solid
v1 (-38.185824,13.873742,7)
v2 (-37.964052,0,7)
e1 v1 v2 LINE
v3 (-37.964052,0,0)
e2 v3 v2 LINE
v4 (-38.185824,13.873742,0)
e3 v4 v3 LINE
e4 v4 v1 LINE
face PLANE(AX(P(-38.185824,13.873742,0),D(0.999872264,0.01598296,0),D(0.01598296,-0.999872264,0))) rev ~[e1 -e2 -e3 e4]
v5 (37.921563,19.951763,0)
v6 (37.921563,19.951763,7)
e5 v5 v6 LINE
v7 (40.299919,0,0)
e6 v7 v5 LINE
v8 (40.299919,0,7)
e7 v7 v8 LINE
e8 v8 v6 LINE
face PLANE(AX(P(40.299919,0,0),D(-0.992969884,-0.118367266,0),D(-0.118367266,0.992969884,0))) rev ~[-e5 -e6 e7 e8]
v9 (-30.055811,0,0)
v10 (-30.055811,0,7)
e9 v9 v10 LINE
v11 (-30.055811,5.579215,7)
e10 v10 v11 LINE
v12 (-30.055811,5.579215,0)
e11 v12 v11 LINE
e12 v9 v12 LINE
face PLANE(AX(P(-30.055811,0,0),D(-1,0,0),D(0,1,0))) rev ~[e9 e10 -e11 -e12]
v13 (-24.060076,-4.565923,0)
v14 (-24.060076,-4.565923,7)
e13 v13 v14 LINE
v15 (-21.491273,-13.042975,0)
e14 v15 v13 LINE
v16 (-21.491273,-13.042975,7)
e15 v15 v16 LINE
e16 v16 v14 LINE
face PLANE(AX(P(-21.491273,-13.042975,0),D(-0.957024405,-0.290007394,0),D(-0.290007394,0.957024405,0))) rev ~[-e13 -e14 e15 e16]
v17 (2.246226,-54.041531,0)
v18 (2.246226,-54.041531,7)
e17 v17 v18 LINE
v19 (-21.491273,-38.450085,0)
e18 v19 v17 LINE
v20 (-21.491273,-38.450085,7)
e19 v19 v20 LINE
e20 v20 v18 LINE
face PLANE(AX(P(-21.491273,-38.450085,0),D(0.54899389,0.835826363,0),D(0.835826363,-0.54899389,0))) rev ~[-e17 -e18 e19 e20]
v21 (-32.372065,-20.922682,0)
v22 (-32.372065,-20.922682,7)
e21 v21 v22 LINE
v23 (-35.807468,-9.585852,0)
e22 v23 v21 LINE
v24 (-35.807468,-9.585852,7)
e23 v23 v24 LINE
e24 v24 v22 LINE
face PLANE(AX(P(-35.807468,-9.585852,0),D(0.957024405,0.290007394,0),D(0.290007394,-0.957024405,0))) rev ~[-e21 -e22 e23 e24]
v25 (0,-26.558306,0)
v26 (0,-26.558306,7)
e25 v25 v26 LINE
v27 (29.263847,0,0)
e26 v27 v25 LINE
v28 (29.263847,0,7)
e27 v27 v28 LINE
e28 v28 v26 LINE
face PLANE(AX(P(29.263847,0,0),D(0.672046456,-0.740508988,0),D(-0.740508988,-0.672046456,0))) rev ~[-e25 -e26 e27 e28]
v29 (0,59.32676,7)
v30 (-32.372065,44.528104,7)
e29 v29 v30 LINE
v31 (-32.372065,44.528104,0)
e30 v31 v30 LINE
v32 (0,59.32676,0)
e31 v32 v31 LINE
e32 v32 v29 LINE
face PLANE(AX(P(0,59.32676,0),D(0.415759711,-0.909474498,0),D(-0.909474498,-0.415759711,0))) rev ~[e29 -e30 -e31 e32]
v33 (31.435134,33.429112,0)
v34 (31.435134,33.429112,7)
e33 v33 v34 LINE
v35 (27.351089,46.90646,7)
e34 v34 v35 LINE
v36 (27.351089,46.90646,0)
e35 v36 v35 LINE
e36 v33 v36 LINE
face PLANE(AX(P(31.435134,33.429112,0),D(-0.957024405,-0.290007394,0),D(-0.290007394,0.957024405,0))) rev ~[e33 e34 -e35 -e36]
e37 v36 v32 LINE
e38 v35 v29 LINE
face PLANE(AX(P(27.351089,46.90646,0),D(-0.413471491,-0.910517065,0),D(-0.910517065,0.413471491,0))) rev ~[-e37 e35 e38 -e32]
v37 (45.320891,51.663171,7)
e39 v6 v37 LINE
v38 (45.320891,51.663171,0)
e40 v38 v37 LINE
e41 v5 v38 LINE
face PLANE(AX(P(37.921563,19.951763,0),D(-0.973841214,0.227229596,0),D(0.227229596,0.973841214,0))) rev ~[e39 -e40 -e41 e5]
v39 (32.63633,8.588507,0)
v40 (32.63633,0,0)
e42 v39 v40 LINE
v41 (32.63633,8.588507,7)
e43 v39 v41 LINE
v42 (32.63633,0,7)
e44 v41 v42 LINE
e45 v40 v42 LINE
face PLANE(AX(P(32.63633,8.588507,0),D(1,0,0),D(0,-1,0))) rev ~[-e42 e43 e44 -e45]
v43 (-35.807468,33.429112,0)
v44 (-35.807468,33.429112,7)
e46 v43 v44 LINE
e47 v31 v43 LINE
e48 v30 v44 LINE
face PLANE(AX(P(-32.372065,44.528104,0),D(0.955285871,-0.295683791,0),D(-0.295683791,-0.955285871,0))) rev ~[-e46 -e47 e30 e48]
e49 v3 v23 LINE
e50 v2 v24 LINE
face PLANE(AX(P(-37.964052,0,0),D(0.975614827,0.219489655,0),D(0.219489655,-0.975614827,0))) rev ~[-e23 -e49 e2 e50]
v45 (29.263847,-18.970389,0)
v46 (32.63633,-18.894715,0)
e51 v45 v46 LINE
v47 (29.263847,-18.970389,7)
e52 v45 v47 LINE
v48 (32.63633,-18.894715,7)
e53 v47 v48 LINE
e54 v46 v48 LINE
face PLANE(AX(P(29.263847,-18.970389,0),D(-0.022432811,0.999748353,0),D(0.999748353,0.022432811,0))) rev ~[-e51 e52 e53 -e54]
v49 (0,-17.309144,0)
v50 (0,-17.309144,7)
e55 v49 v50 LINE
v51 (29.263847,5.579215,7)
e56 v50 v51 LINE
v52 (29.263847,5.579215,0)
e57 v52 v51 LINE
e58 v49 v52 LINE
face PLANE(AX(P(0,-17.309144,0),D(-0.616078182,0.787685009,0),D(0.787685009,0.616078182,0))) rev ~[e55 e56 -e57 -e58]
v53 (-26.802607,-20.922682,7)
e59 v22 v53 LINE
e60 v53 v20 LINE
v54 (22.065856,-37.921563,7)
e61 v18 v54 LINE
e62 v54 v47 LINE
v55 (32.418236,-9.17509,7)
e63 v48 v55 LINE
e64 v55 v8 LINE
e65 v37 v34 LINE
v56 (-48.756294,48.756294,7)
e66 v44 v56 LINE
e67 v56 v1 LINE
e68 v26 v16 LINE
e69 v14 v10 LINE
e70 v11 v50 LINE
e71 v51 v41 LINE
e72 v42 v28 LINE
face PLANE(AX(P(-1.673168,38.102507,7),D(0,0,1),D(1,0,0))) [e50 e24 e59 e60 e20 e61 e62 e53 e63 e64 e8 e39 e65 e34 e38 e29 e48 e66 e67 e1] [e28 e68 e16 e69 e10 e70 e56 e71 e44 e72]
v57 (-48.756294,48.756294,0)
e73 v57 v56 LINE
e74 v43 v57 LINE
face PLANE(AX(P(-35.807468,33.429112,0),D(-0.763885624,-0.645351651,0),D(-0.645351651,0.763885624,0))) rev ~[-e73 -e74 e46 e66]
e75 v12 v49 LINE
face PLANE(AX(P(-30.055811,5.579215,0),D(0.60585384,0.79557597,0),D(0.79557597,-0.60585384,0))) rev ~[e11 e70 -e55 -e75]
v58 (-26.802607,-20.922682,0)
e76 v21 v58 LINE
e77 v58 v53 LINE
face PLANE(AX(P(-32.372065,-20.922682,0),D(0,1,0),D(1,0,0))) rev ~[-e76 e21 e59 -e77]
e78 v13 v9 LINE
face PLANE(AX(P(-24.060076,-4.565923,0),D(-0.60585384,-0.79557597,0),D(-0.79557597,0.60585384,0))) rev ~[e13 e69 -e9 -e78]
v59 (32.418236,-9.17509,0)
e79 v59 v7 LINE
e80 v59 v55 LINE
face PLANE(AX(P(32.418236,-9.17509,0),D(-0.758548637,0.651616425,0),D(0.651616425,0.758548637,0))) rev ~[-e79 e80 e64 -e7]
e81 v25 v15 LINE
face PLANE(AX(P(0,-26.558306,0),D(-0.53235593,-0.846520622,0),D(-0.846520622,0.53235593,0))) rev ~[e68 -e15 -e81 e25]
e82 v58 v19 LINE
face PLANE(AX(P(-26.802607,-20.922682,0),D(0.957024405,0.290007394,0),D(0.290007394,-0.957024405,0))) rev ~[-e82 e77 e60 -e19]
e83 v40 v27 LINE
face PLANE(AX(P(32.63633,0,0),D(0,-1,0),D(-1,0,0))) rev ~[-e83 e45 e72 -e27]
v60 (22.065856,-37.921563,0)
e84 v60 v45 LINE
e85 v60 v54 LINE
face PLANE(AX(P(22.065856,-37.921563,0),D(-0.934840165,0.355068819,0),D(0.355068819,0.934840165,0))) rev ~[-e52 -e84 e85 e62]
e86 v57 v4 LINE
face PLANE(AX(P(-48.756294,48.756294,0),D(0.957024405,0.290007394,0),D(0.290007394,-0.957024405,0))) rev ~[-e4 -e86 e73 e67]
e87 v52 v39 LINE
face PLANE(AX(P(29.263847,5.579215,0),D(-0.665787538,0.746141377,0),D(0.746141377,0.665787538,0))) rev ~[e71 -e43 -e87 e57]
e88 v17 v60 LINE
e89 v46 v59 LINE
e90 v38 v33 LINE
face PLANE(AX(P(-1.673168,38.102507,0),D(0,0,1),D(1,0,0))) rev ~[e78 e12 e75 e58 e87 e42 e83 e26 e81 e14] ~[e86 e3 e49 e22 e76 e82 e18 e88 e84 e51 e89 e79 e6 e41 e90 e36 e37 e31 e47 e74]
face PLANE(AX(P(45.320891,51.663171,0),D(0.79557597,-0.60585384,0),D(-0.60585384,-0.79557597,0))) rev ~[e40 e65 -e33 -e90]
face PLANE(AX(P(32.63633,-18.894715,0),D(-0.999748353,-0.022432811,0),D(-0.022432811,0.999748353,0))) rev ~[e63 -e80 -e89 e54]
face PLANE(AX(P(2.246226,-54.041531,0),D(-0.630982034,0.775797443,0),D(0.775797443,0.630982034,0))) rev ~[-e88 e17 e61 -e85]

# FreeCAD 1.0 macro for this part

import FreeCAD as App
import Part
import Sketcher

doc = App.newDocument("Part")
body = doc.addObject("PartDesign::Body", "Body")

# Sketch on XY plane
sketch1 = doc.addObject("Sketcher::SketchObject", "Sketch")
body.addObject(sketch1)
sketch1.AttachmentSupport = (doc.XY_Plane, [""])
sketch1.MapMode = "FlatFace"
sketch1.addGeometry(Part.LineSegment(App.Vector(-48.8, 48.8, 0), App.Vector(-38.2, 13.9, 0)), False)
sketch1.addGeometry(Part.LineSegment(App.Vector(-38.2, 13.9, 0), App.Vector(-38, 0, 0)), False)
sketch1.addGeometry(Part.LineSegment(App.Vector(-38, 0, 0), App.Vector(-35.8, -9.6, 0)), False)
sketch1.addGeometry(Part.LineSegment(App.Vector(-35.8, -9.6, 0), App.Vector(-32.4, -20.9, 0)), False)
sketch1.addGeometry(Part.LineSegment(App.Vector(-32.4, -20.9, 0), App.Vector(-26.8, -20.9, 0)), False)
sketch1.addGeometry(Part.LineSegment(App.Vector(-26.8, -20.9, 0), App.Vector(-21.5, -38.5, 0)), False)
sketch1.addGeometry(Part.LineSegment(App.Vector(-21.5, -38.5, 0), App.Vector(2.2, -54, 0)), False)
sketch1.addGeometry(Part.LineSegment(App.Vector(2.2, -54, 0), App.Vector(22.1, -37.9, 0)), False)
sketch1.addGeometry(Part.LineSegment(App.Vector(22.1, -37.9, 0), App.Vector(29.3, -19, 0)), False)
sketch1.addGeometry(Part.LineSegment(App.Vector(29.3, -19, 0), App.Vector(32.6, -18.9, 0)), False)
sketch1.addGeometry(Part.LineSegment(App.Vector(32.6, -18.9, 0), App.Vector(32.4, -9.2, 0)), False)
sketch1.addGeometry(Part.LineSegment(App.Vector(32.4, -9.2, 0), App.Vector(40.3, 0, 0)), False)
sketch1.addGeometry(Part.LineSegment(App.Vector(40.3, 0, 0), App.Vector(37.9, 20, 0)), False)
sketch1.addGeometry(Part.LineSegment(App.Vector(37.9, 20, 0), App.Vector(45.3, 51.7, 0)), False)
sketch1.addGeometry(Part.LineSegment(App.Vector(45.3, 51.7, 0), App.Vector(31.4, 33.4, 0)), False)
sketch1.addGeometry(Part.LineSegment(App.Vector(31.4, 33.4, 0), App.Vector(27.4, 46.9, 0)), False)
sketch1.addGeometry(Part.LineSegment(App.Vector(27.4, 46.9, 0), App.Vector(0, 59.3, 0)), False)
sketch1.addGeometry(Part.LineSegment(App.Vector(0, 59.3, 0), App.Vector(-32.4, 44.5, 0)), False)
sketch1.addGeometry(Part.LineSegment(App.Vector(-32.4, 44.5, 0), App.Vector(-35.8, 33.4, 0)), False)
sketch1.addGeometry(Part.LineSegment(App.Vector(-35.8, 33.4, 0), App.Vector(-48.8, 48.8, 0)), False)
sketch1.addGeometry(Part.LineSegment(App.Vector(29.3, 0, 0), App.Vector(0, -26.6, 0)), False)
sketch1.addGeometry(Part.LineSegment(App.Vector(0, -26.6, 0), App.Vector(-21.5, -13, 0)), False)
sketch1.addGeometry(Part.LineSegment(App.Vector(-21.5, -13, 0), App.Vector(-24.1, -4.6, 0)), False)
sketch1.addGeometry(Part.LineSegment(App.Vector(-24.1, -4.6, 0), App.Vector(-30.1, 0, 0)), False)
sketch1.addGeometry(Part.LineSegment(App.Vector(-30.1, 0, 0), App.Vector(-30.1, 5.6, 0)), False)
sketch1.addGeometry(Part.LineSegment(App.Vector(-30.1, 5.6, 0), App.Vector(0, -17.3, 0)), False)
sketch1.addGeometry(Part.LineSegment(App.Vector(0, -17.3, 0), App.Vector(29.3, 5.6, 0)), False)
sketch1.addGeometry(Part.LineSegment(App.Vector(29.3, 5.6, 0), App.Vector(32.6, 8.6, 0)), False)
sketch1.addGeometry(Part.LineSegment(App.Vector(32.6, 8.6, 0), App.Vector(32.6, 0, 0)), False)
sketch1.addGeometry(Part.LineSegment(App.Vector(32.6, 0, 0), App.Vector(29.3, 0, 0)), False)
sketch1.addConstraint(Sketcher.Constraint("Coincident", 0, 2, 1, 1))
sketch1.addConstraint(Sketcher.Constraint("Coincident", 1, 2, 2, 1))
sketch1.addConstraint(Sketcher.Constraint("Coincident", 2, 2, 3, 1))
sketch1.addConstraint(Sketcher.Constraint("Coincident", 3, 2, 4, 1))
sketch1.addConstraint(Sketcher.Constraint("Coincident", 4, 2, 5, 1))
sketch1.addConstraint(Sketcher.Constraint("Coincident", 5, 2, 6, 1))
sketch1.addConstraint(Sketcher.Constraint("Coincident", 6, 2, 7, 1))
sketch1.addConstraint(Sketcher.Constraint("Coincident", 7, 2, 8, 1))
sketch1.addConstraint(Sketcher.Constraint("Coincident", 8, 2, 9, 1))
sketch1.addConstraint(Sketcher.Constraint("Coincident", 9, 2, 10, 1))
sketch1.addConstraint(Sketcher.Constraint("Coincident", 10, 2, 11, 1))
sketch1.addConstraint(Sketcher.Constraint("Coincident", 11, 2, 12, 1))
sketch1.addConstraint(Sketcher.Constraint("Coincident", 12, 2, 13, 1))
sketch1.addConstraint(Sketcher.Constraint("Coincident", 13, 2, 14, 1))
sketch1.addConstraint(Sketcher.Constraint("Coincident", 14, 2, 15, 1))
sketch1.addConstraint(Sketcher.Constraint("Coincident", 15, 2, 16, 1))
sketch1.addConstraint(Sketcher.Constraint("Coincident", 16, 2, 17, 1))
sketch1.addConstraint(Sketcher.Constraint("Coincident", 17, 2, 18, 1))
sketch1.addConstraint(Sketcher.Constraint("Coincident", 18, 2, 19, 1))
sketch1.addConstraint(Sketcher.Constraint("Coincident", 19, 2, 0, 1))
sketch1.addConstraint(Sketcher.Constraint("Coincident", 20, 2, 21, 1))
sketch1.addConstraint(Sketcher.Constraint("Coincident", 21, 2, 22, 1))
sketch1.addConstraint(Sketcher.Constraint("Coincident", 22, 2, 23, 1))
sketch1.addConstraint(Sketcher.Constraint("Coincident", 23, 2, 24, 1))
sketch1.addConstraint(Sketcher.Constraint("Coincident", 24, 2, 25, 1))
sketch1.addConstraint(Sketcher.Constraint("Coincident", 25, 2, 26, 1))
sketch1.addConstraint(Sketcher.Constraint("Coincident", 26, 2, 27, 1))
sketch1.addConstraint(Sketcher.Constraint("Coincident", 27, 2, 28, 1))
sketch1.addConstraint(Sketcher.Constraint("Coincident", 28, 2, 29, 1))
sketch1.addConstraint(Sketcher.Constraint("Coincident", 29, 2, 20, 1))
sketch1.addConstraint(Sketcher.Constraint("Horizontal", 4))
sketch1.addConstraint(Sketcher.Constraint("Vertical", 24))
sketch1.addConstraint(Sketcher.Constraint("Vertical", 28))
sketch1.addConstraint(Sketcher.Constraint("Horizontal", 29))
sketch1.addConstraint(Sketcher.Constraint("PointOnObject", 1, 2, -1))
sketch1.addConstraint(Sketcher.Constraint("PointOnObject", 11, 2, -1))
sketch1.addConstraint(Sketcher.Constraint("PointOnObject", 16, 2, -2))
sketch1.addConstraint(Sketcher.Constraint("PointOnObject", 20, 2, -2))
sketch1.addConstraint(Sketcher.Constraint("PointOnObject", 23, 2, -1))
sketch1.addConstraint(Sketcher.Constraint("PointOnObject", 25, 2, -2))
sketch1.addConstraint(Sketcher.Constraint("PointOnObject", 28, 2, -1))
sketch1.addConstraint(Sketcher.Constraint("Parallel", 0, 3))
sketch1.addConstraint(Sketcher.Constraint("Parallel", 3, 5))
sketch1.addConstraint(Sketcher.Constraint("Perpendicular", 9, 10))
sketch1.addConstraint(Sketcher.Constraint("Parallel", 5, 15))
sketch1.addConstraint(Sketcher.Constraint("Parallel", 15, 22))
sketch1.addConstraint(Sketcher.Constraint("Perpendicular", 14, 23))
sketch1.addConstraint(Sketcher.Constraint("Parallel", 23, 25))
sketch1.addConstraint(Sketcher.Constraint("Horizontal", 14, 2, 18, 2))
sketch1.addConstraint(Sketcher.Constraint("Horizontal", 24, 2, 26, 2))
sketch1.addConstraint(Sketcher.Constraint("Vertical", 3, 2, 17, 2))
sketch1.addConstraint(Sketcher.Constraint("Vertical", 2, 2, 18, 2))
sketch1.addConstraint(Sketcher.Constraint("Vertical", 5, 2, 21, 2))
sketch1.addConstraint(Sketcher.Constraint("Vertical", 8, 2, 26, 2))
sketch1.addConstraint(Sketcher.Constraint("Vertical", 9, 2, 27, 2))
sketch1.addConstraint(Sketcher.Constraint("Vertical", 26, 2, 29, 2))
sketch1.addConstraint(Sketcher.Constraint("Distance", 8, 20.272101))
sketch1.addConstraint(Sketcher.Constraint("Distance", 27, 4.519898))
sketch1.addConstraint(Sketcher.Constraint("DistanceX", 4, 1, 4, 2, 5.569458))
sketch1.addConstraint(Sketcher.Constraint("DistanceX", 5, 2, 6, 2, 23.737499))
sketch1.addConstraint(Sketcher.Constraint("DistanceY", 8, 2, 10, 2, 9.795298))
sketch1.addConstraint(Sketcher.Constraint("DistanceY", 15, 2, 16, 2, 12.4203))
sketch1.addConstraint(Sketcher.Constraint("Distance", 0, 36.448968))
sketch1.addConstraint(Sketcher.Constraint("Distance", 5, 18.314478))
sketch1.addConstraint(Sketcher.Constraint("Distance", 7, 25.547428))
sketch1.addConstraint(Sketcher.Constraint("Distance", 9, 3.373332))
sketch1.addConstraint(Sketcher.Constraint("Distance", 10, 9.722072))
sketch1.addConstraint(Sketcher.Constraint("Distance", 12, 20.093019))
sketch1.addConstraint(Sketcher.Constraint("Distance", 14, 22.919319))
sketch1.addConstraint(Sketcher.Constraint("Distance", 19, 20.06476))
sketch1.addConstraint(Sketcher.Constraint("Distance", 25, 37.778681))
sketch1.addConstraint(Sketcher.Constraint("Distance", 26, 37.151712))
sketch1.addConstraint(Sketcher.Constraint("DistanceY", 24, 1, 24, 2, 5.579215))
sketch1.addConstraint(Sketcher.Constraint("DistanceY", -1, 1, 0, 2, 13.873742))
sketch1.addConstraint(Sketcher.Constraint("DistanceX", 1, 2, -1, 1, 37.964052))
sketch1.addConstraint(Sketcher.Constraint("DistanceY", 2, 2, -1, 1, 9.585852))
sketch1.addConstraint(Sketcher.Constraint("DistanceY", 3, 2, -1, 1, 20.922682))
sketch1.addConstraint(Sketcher.Constraint("DistanceY", 6, 2, -1, 1, 54.041531))
sketch1.addConstraint(Sketcher.Constraint("DistanceY", 8, 2, -1, 1, 18.970389))
sketch1.addConstraint(Sketcher.Constraint("DistanceX", -1, 1, 9, 2, 32.63633))
sketch1.addConstraint(Sketcher.Constraint("DistanceX", -1, 1, 11, 2, 40.299919))
sketch1.addConstraint(Sketcher.Constraint("DistanceX", -1, 1, 13, 2, 45.320891))
sketch1.addConstraint(Sketcher.Constraint("DistanceY", -1, 1, 13, 2, 51.663171))
sketch1.addConstraint(Sketcher.Constraint("DistanceX", -1, 1, 15, 2, 27.351089))
sketch1.addConstraint(Sketcher.Constraint("DistanceY", -1, 1, 15, 2, 46.90646))
sketch1.addConstraint(Sketcher.Constraint("DistanceX", 0, 2, 1, 2, 0.221772))
sketch1.addConstraint(Sketcher.Constraint("DistanceY", 8, 2, 12, 2, 38.922151))
sketch1.addConstraint(Sketcher.Constraint("DistanceY", 17, 2, 19, 2, 4.22819))
sketch1.addConstraint(Sketcher.Constraint("DistanceY", 5, 2, 20, 2, 11.891779))
sketch1.addConstraint(Sketcher.Constraint("DistanceY", 20, 2, 21, 2, 13.515331))
pad1 = doc.addObject("PartDesign::Pad", "Pad")
body.addObject(pad1)
pad1.Profile = sketch1
pad1.Length = 7

doc.recompute()
